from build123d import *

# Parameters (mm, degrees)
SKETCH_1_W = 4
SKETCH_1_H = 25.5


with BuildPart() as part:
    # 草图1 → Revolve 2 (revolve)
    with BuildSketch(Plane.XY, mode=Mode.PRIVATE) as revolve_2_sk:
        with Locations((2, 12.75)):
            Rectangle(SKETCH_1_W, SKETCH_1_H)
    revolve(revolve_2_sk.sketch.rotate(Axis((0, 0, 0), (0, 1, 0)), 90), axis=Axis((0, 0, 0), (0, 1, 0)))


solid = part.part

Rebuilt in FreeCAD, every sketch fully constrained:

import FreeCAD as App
import Part
import Sketcher
Q = App.Units.Quantity


def add_polygon(sketch, points):
    """Adds a closed chain of lines whose ends are joined by coincident constraints."""
    first, n = sketch.GeometryCount, len(points)
    for a, b in zip(points, points[1:] + points[:1]):
        sketch.addGeometry(Part.LineSegment(App.Vector(*a, 0), App.Vector(*b, 0)), False)
    for i in range(n):
        sketch.addConstraint(Sketcher.Constraint("Coincident", first + i, 2, first + (i + 1) % n, 1))

doc = App.newDocument("Part")
body = doc.addObject("PartDesign::Body", "Body")

sketch1 = body.newObject("Sketcher::SketchObject", "Sketch")
sketch1.AttachmentSupport = (doc.getObject("XY_Plane"), [""])
sketch1.MapMode = "FlatFace"
add_polygon(sketch1, [(0, 25.5), (0, 0), (4, 0), (4, 25.5)])
sketch1.addConstraint(Sketcher.Constraint("Vertical", 0))
sketch1.addConstraint(Sketcher.Constraint("Horizontal", 1))
sketch1.addConstraint(Sketcher.Constraint("Vertical", 2))
sketch1.addConstraint(Sketcher.Constraint("Horizontal", 3))
sketch1.addConstraint(Sketcher.Constraint("Coincident", 0, 2, -1, 1))
sketch1.addConstraint(Sketcher.Constraint("DistanceX", 1, 1, 1, 2, Q("4 mm")))
sketch1.addConstraint(Sketcher.Constraint("DistanceY", 0, 2, 0, 1, Q("25.5 mm")))
revolution = body.newObject("PartDesign::Revolution", "Revolution")
revolution.Profile = sketch1
revolution.ReferenceAxis = (sketch1, ["V_Axis"])
revolution.Angle = 360

doc.recompute()
